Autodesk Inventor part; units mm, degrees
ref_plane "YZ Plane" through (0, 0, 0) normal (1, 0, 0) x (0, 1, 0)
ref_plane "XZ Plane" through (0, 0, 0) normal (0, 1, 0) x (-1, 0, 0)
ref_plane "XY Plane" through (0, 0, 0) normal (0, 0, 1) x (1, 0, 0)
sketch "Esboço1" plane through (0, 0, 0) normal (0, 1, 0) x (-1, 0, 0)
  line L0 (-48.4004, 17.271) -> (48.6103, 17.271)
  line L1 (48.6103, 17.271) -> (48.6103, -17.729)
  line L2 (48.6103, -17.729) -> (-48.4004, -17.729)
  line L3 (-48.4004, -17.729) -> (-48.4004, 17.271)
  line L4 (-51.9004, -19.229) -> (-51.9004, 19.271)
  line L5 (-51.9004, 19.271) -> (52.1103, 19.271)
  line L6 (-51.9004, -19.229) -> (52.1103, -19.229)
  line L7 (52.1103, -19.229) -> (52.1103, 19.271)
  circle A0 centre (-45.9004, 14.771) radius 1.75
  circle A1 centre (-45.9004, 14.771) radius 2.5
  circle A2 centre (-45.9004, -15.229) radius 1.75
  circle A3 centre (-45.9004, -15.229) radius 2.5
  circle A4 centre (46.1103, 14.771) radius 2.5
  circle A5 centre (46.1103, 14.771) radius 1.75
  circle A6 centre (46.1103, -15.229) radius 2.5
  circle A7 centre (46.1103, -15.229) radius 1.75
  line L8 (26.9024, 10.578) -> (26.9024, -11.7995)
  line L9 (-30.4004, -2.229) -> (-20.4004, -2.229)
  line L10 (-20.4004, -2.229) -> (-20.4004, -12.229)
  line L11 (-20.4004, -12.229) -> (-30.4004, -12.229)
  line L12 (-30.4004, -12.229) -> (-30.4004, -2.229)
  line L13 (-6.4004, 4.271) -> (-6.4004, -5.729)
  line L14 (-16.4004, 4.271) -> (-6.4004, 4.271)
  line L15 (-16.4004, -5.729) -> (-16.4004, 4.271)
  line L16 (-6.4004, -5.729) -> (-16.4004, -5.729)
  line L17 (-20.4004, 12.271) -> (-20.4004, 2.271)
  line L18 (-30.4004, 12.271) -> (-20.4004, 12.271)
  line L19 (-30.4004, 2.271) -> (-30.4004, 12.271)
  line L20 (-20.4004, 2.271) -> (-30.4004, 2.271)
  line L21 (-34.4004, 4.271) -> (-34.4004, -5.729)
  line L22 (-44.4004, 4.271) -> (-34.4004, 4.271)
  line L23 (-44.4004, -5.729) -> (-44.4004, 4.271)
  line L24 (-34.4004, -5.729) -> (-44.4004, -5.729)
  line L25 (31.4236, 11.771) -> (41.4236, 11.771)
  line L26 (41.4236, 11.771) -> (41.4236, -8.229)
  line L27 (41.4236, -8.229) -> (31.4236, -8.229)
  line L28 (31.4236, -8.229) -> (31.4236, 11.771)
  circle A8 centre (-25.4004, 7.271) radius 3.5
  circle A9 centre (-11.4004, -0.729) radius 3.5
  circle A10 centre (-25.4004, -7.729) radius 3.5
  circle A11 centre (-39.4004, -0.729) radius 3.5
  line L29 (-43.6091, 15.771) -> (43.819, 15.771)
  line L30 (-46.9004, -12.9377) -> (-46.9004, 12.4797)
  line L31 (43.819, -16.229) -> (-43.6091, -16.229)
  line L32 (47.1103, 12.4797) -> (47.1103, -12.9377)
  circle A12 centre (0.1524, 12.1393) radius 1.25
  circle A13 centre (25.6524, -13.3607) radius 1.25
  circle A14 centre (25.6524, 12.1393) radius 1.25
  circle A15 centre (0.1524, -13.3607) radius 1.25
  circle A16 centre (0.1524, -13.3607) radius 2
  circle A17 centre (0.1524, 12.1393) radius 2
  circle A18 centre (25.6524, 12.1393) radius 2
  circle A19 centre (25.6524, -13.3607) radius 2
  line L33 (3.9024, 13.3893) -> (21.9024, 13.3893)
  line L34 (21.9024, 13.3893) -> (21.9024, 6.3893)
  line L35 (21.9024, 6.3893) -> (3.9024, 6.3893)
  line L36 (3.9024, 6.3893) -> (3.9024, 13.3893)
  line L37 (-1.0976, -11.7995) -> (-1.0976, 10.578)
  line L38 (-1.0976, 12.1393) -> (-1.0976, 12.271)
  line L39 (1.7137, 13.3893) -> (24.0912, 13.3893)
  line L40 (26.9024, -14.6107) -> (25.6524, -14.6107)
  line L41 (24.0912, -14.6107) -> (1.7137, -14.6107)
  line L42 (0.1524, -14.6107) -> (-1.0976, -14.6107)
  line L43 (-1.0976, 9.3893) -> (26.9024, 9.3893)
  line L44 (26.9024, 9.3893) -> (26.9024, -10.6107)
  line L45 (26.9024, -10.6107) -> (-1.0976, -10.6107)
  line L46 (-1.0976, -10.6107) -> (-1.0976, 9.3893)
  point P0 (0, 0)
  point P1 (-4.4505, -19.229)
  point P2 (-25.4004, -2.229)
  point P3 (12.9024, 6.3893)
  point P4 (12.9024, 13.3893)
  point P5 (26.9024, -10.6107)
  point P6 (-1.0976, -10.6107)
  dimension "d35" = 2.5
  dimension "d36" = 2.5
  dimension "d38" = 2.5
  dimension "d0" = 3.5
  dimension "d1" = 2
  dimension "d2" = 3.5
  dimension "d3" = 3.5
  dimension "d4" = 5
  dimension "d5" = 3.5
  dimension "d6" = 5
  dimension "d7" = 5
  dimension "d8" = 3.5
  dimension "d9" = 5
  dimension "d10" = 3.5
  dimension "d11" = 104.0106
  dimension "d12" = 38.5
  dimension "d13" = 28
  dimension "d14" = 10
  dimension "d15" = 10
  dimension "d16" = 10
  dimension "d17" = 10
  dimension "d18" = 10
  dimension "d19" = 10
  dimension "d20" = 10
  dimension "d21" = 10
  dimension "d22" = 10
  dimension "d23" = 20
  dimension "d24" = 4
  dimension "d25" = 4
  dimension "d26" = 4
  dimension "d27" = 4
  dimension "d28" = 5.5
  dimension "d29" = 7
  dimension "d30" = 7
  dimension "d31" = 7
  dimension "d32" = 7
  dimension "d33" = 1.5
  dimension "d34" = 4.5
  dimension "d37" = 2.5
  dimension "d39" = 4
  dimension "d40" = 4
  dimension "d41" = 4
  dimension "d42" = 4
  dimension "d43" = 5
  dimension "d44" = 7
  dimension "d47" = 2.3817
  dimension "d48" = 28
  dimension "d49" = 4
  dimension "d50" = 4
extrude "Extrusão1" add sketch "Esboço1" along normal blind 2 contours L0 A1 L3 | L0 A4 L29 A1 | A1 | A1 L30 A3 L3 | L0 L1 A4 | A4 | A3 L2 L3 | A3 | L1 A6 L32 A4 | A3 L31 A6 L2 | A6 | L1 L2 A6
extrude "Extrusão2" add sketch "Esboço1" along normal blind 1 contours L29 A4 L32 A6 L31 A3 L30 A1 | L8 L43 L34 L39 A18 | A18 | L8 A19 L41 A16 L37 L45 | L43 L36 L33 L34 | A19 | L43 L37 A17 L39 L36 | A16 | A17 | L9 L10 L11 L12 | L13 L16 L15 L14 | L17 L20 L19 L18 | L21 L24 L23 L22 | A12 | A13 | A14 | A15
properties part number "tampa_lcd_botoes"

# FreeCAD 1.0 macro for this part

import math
import FreeCAD as App
import Part
import Sketcher
from FreeCAD import Vector

doc = App.newDocument("Part")
body = doc.addObject("PartDesign::Body", "Body")

sketch1 = doc.addObject("Sketcher::SketchObject", "Sketch")
body.addObject(sketch1)
sketch1.AttachmentSupport = (doc.XZ_Plane, [""])
sketch1.MapMode = "FlatFace"
sketch1.addGeometry([
    Part.LineSegment(Vector(48.4, 17.3, 0), Vector(48.4, -17.7, 0)),
    Part.LineSegment(Vector(48.4, -17.7, 0), Vector(-48.6, -17.7, 0)),
    Part.LineSegment(Vector(-48.6, -17.7, 0), Vector(-48.6, 17.3, 0)),
    Part.LineSegment(Vector(-48.6, 17.3, 0), Vector(48.4, 17.3, 0)),
    Part.LineSegment(Vector(43.6, 15.8, 0), Vector(-43.8, 15.8, 0)),
    Part.ArcOfCircle(Part.Circle(Vector(-46.1, 14.8, 0), Vector(0, 0, 1), 2.5), math.radians(-114), math.radians(24)),
    Part.LineSegment(Vector(-47.1, 12.5, 0), Vector(-47.1, -12.9, 0)),
    Part.ArcOfCircle(Part.Circle(Vector(-46.1, -15.2, 0), Vector(0, 0, 1), 2.5), math.radians(-24), math.radians(114)),
    Part.LineSegment(Vector(-43.8, -16.2, 0), Vector(43.6, -16.2, 0)),
    Part.ArcOfCircle(Part.Circle(Vector(45.9, -15.2, 0), Vector(0, 0, 1), 2.5), math.radians(66), math.radians(204)),
    Part.LineSegment(Vector(46.9, -12.9, 0), Vector(46.9, 12.5, 0)),
    Part.ArcOfCircle(Part.Circle(Vector(45.9, 14.8, 0), Vector(0, 0, 1), 2.5), math.radians(156), math.radians(294)),
    Part.Circle(Vector(45.9, 14.8, 0), Vector(0, 0, 1), 1.8),
    Part.Circle(Vector(-46.1, 14.8, 0), Vector(0, 0, 1), 1.8),
    Part.Circle(Vector(45.9, -15.2, 0), Vector(0, 0, 1), 1.8),
    Part.Circle(Vector(-46.1, -15.2, 0), Vector(0, 0, 1), 1.8),
], False)
sketch1.addConstraint([
    Sketcher.Constraint("Coincident", 0, 2, 1, 1),
    Sketcher.Constraint("Coincident", 1, 2, 2, 1),
    Sketcher.Constraint("Coincident", 2, 2, 3, 1),
    Sketcher.Constraint("Coincident", 3, 2, 0, 1),
    Sketcher.Constraint("Coincident", 4, 2, 5, 2),
    Sketcher.Constraint("Coincident", 5, 1, 6, 1),
    Sketcher.Constraint("Coincident", 6, 2, 7, 2),
    Sketcher.Constraint("Coincident", 7, 1, 8, 1),
    Sketcher.Constraint("Coincident", 8, 2, 9, 2),
    Sketcher.Constraint("Coincident", 9, 1, 10, 1),
    Sketcher.Constraint("Coincident", 10, 2, 11, 2),
    Sketcher.Constraint("Coincident", 11, 1, 4, 1),
    Sketcher.Constraint("Vertical", 0),
    Sketcher.Constraint("Horizontal", 1),
    Sketcher.Constraint("Vertical", 2),
    Sketcher.Constraint("Horizontal", 3),
    Sketcher.Constraint("Horizontal", 4),
    Sketcher.Constraint("Vertical", 6),
    Sketcher.Constraint("Horizontal", 8),
    Sketcher.Constraint("Vertical", 10),
    Sketcher.Constraint("Coincident", 12, 3, 11, 3),
    Sketcher.Constraint("Coincident", 13, 3, 5, 3),
    Sketcher.Constraint("Coincident", 14, 3, 9, 3),
    Sketcher.Constraint("Coincident", 15, 3, 7, 3),
    Sketcher.Constraint("Equal", 5, 7),
    Sketcher.Constraint("Equal", 7, 9),
    Sketcher.Constraint("Equal", 9, 11),
    Sketcher.Constraint("Equal", 12, 13),
    Sketcher.Constraint("Equal", 13, 14),
    Sketcher.Constraint("Equal", 14, 15),
    Sketcher.Constraint("Horizontal", 7, 3, 9, 3),
    Sketcher.Constraint("Horizontal", 5, 3, 11, 3),
    Sketcher.Constraint("Horizontal", 6, 2, 9, 1),
    Sketcher.Constraint("Horizontal", 5, 1, 10, 2),
    Sketcher.Constraint("Vertical", 5, 3, 7, 3),
    Sketcher.Constraint("Vertical", 4, 2, 7, 1),
    Sketcher.Constraint("Diameter", 12, 3.5),
    Sketcher.Constraint("Radius", 5, 2.5),
    Sketcher.Constraint("DistanceX", 9, 3, 0, 2, 2.5),
    Sketcher.Constraint("DistanceY", 0, 2, 9, 3, 2.5),
    Sketcher.Constraint("DistanceX", 1, 2, 7, 3, 2.5),
    Sketcher.Constraint("DistanceY", 5, 3, 2, 2, 2.5),
    Sketcher.Constraint("DistanceY", 4, 2, 2, 2, 1.5),
    Sketcher.Constraint("DistanceX", 2, 2, 5, 1, 1.5),
    Sketcher.Constraint("DistanceY", 0, 2, 0, 1, 35.0),
    Sketcher.Constraint("DistanceX", 4, 2, 4, 1, 87.428),
    Sketcher.Constraint("DistanceY", -1, 1, 5, 3, 14.771),
    Sketcher.Constraint("DistanceX", 4, 2, -1, 1, 43.819),
])
pad1 = doc.addObject("PartDesign::Pad", "Pad")
body.addObject(pad1)
pad1.Profile = sketch1
pad1.Length = 2
pad1.Reversed = True

sketch2 = doc.addObject("Sketcher::SketchObject", "Sketch001")
body.addObject(sketch2)
sketch2.AttachmentSupport = (doc.XZ_Plane, [""])
sketch2.MapMode = "FlatFace"
sketch2.addGeometry([
    Part.LineSegment(Vector(-43.8, 15.8, 0), Vector(43.6, 15.8, 0)),
    Part.ArcOfCircle(Part.Circle(Vector(45.9, 14.8, 0), Vector(0, 0, 1), 2.5), math.radians(156), math.radians(294)),
    Part.LineSegment(Vector(46.9, 12.5, 0), Vector(46.9, -12.9, 0)),
    Part.ArcOfCircle(Part.Circle(Vector(45.9, -15.2, 0), Vector(0, 0, 1), 2.5), math.radians(66), math.radians(204)),
    Part.LineSegment(Vector(43.6, -16.2, 0), Vector(-43.8, -16.2, 0)),
    Part.ArcOfCircle(Part.Circle(Vector(-46.1, -15.2, 0), Vector(0, 0, 1), 2.5), math.radians(-24), math.radians(114)),
    Part.LineSegment(Vector(-47.1, -12.9, 0), Vector(-47.1, 12.5, 0)),
    Part.ArcOfCircle(Part.Circle(Vector(-46.1, 14.8, 0), Vector(0, 0, 1), 2.5), math.radians(-114), math.radians(24)),
    Part.LineSegment(Vector(1.1, -10.6, 0), Vector(1.1, 9.4, 0)),
    Part.LineSegment(Vector(1.1, 9.4, 0), Vector(-26.9, 9.4, 0)),
    Part.LineSegment(Vector(-26.9, 9.4, 0), Vector(-26.9, -10.6, 0)),
    Part.LineSegment(Vector(-26.9, -10.6, 0), Vector(1.1, -10.6, 0)),
    Part.LineSegment(Vector(-31.4, -8.2, 0), Vector(-31.4, 11.8, 0)),
    Part.LineSegment(Vector(-31.4, 11.8, 0), Vector(-41.4, 11.8, 0)),
    Part.LineSegment(Vector(-41.4, 11.8, 0), Vector(-41.4, -8.2, 0)),
    Part.LineSegment(Vector(-41.4, -8.2, 0), Vector(-31.4, -8.2, 0)),
    Part.Circle(Vector(39.4, -0.7, 0), Vector(0, 0, 1), 3.5),
    Part.Circle(Vector(25.4, -7.7, 0), Vector(0, 0, 1), 3.5),
    Part.Circle(Vector(11.4, -0.7, 0), Vector(0, 0, 1), 3.5),
    Part.Circle(Vector(25.4, 7.3, 0), Vector(0, 0, 1), 3.5),
], False)
sketch2.addConstraint([
    Sketcher.Constraint("Coincident", 0, 2, 1, 1),
    Sketcher.Constraint("Coincident", 1, 2, 2, 1),
    Sketcher.Constraint("Coincident", 2, 2, 3, 1),
    Sketcher.Constraint("Coincident", 3, 2, 4, 1),
    Sketcher.Constraint("Coincident", 4, 2, 5, 1),
    Sketcher.Constraint("Coincident", 5, 2, 6, 1),
    Sketcher.Constraint("Coincident", 6, 2, 7, 1),
    Sketcher.Constraint("Coincident", 7, 2, 0, 1),
    Sketcher.Constraint("Coincident", 8, 2, 9, 1),
    Sketcher.Constraint("Coincident", 9, 2, 10, 1),
    Sketcher.Constraint("Coincident", 10, 2, 11, 1),
    Sketcher.Constraint("Coincident", 11, 2, 8, 1),
    Sketcher.Constraint("Coincident", 12, 2, 13, 1),
    Sketcher.Constraint("Coincident", 13, 2, 14, 1),
    Sketcher.Constraint("Coincident", 14, 2, 15, 1),
    Sketcher.Constraint("Coincident", 15, 2, 12, 1),
    Sketcher.Constraint("Horizontal", 0),
    Sketcher.Constraint("Vertical", 2),
    Sketcher.Constraint("Horizontal", 4),
    Sketcher.Constraint("Vertical", 6),
    Sketcher.Constraint("Vertical", 8),
    Sketcher.Constraint("Horizontal", 9),
    Sketcher.Constraint("Vertical", 10),
    Sketcher.Constraint("Horizontal", 11),
    Sketcher.Constraint("Vertical", 12),
    Sketcher.Constraint("Horizontal", 13),
    Sketcher.Constraint("Vertical", 14),
    Sketcher.Constraint("Horizontal", 15),
    Sketcher.Constraint("Equal", 1, 3),
    Sketcher.Constraint("Equal", 3, 5),
    Sketcher.Constraint("Equal", 5, 7),
    Sketcher.Constraint("Equal", 16, 17),
    Sketcher.Constraint("Equal", 17, 18),
    Sketcher.Constraint("Equal", 18, 19),
    Sketcher.Constraint("Horizontal", 3, 3, 5, 3),
    Sketcher.Constraint("Horizontal", 1, 3, 7, 3),
    Sketcher.Constraint("Horizontal", 16, 3, 18, 3),
    Sketcher.Constraint("Horizontal", 2, 2, 5, 2),
    Sketcher.Constraint("Horizontal", 1, 2, 6, 2),
    Sketcher.Constraint("Vertical", 1, 3, 3, 3),
    Sketcher.Constraint("Vertical", 17, 3, 19, 3),
    Sketcher.Constraint("Vertical", 0, 2, 3, 2),
    Sketcher.Constraint("Equal", 10, 12),
    Sketcher.Constraint("Diameter", 16, 7.0),
    Sketcher.Constraint("Radius", 1, 2.5),
    Sketcher.Constraint("DistanceX", 9, 2, 9, 1, 28.0),
    Sketcher.Constraint("DistanceX", 13, 2, 13, 1, 10.0),
    Sketcher.Constraint("DistanceY", 8, 1, 8, 2, 20.0),
    Sketcher.Constraint("DistanceY", 17, 3, 16, 3, 7.0),
    Sketcher.Constraint("DistanceX", 18, 3, 16, 3, 28.0),
    Sketcher.Constraint("DistanceY", 12, 2, 7, 2, 4.0),
    Sketcher.Constraint("DistanceY", 5, 3, 14, 2, 7.0),
    Sketcher.Constraint("DistanceY", 3, 3, 1, 3, 30.0),
    Sketcher.Constraint("DistanceX", 17, 3, 16, 3, 14.0),
    Sketcher.Constraint("DistanceY", 17, 3, 19, 3, 15.0),
    Sketcher.Constraint("DistanceX", 1, 3, 1, 2, 1.0),
    Sketcher.Constraint("DistanceX", 16, 3, 3, 3, 6.5),
    Sketcher.Constraint("DistanceY", 3, 3, 16, 3, 14.5),
    Sketcher.Constraint("DistanceY", 9, 2, 12, 2, 2.3817),
    Sketcher.Constraint("DistanceX", 0, 1, 0, 2, 87.428),
    Sketcher.Constraint("DistanceY", -1, 1, 1, 3, 14.771),
    Sketcher.Constraint("DistanceX", -1, 1, 0, 2, 43.609),
    Sketcher.Constraint("DistanceX", 7, 3, 9, 2, 19.208),
    Sketcher.Constraint("DistanceX", 12, 2, -1, 1, 31.4236),
])
pad2 = doc.addObject("PartDesign::Pad", "Pad001")
body.addObject(pad2)
pad2.Profile = sketch2
pad2.Length = 1
pad2.Reversed = True

doc.recompute()
